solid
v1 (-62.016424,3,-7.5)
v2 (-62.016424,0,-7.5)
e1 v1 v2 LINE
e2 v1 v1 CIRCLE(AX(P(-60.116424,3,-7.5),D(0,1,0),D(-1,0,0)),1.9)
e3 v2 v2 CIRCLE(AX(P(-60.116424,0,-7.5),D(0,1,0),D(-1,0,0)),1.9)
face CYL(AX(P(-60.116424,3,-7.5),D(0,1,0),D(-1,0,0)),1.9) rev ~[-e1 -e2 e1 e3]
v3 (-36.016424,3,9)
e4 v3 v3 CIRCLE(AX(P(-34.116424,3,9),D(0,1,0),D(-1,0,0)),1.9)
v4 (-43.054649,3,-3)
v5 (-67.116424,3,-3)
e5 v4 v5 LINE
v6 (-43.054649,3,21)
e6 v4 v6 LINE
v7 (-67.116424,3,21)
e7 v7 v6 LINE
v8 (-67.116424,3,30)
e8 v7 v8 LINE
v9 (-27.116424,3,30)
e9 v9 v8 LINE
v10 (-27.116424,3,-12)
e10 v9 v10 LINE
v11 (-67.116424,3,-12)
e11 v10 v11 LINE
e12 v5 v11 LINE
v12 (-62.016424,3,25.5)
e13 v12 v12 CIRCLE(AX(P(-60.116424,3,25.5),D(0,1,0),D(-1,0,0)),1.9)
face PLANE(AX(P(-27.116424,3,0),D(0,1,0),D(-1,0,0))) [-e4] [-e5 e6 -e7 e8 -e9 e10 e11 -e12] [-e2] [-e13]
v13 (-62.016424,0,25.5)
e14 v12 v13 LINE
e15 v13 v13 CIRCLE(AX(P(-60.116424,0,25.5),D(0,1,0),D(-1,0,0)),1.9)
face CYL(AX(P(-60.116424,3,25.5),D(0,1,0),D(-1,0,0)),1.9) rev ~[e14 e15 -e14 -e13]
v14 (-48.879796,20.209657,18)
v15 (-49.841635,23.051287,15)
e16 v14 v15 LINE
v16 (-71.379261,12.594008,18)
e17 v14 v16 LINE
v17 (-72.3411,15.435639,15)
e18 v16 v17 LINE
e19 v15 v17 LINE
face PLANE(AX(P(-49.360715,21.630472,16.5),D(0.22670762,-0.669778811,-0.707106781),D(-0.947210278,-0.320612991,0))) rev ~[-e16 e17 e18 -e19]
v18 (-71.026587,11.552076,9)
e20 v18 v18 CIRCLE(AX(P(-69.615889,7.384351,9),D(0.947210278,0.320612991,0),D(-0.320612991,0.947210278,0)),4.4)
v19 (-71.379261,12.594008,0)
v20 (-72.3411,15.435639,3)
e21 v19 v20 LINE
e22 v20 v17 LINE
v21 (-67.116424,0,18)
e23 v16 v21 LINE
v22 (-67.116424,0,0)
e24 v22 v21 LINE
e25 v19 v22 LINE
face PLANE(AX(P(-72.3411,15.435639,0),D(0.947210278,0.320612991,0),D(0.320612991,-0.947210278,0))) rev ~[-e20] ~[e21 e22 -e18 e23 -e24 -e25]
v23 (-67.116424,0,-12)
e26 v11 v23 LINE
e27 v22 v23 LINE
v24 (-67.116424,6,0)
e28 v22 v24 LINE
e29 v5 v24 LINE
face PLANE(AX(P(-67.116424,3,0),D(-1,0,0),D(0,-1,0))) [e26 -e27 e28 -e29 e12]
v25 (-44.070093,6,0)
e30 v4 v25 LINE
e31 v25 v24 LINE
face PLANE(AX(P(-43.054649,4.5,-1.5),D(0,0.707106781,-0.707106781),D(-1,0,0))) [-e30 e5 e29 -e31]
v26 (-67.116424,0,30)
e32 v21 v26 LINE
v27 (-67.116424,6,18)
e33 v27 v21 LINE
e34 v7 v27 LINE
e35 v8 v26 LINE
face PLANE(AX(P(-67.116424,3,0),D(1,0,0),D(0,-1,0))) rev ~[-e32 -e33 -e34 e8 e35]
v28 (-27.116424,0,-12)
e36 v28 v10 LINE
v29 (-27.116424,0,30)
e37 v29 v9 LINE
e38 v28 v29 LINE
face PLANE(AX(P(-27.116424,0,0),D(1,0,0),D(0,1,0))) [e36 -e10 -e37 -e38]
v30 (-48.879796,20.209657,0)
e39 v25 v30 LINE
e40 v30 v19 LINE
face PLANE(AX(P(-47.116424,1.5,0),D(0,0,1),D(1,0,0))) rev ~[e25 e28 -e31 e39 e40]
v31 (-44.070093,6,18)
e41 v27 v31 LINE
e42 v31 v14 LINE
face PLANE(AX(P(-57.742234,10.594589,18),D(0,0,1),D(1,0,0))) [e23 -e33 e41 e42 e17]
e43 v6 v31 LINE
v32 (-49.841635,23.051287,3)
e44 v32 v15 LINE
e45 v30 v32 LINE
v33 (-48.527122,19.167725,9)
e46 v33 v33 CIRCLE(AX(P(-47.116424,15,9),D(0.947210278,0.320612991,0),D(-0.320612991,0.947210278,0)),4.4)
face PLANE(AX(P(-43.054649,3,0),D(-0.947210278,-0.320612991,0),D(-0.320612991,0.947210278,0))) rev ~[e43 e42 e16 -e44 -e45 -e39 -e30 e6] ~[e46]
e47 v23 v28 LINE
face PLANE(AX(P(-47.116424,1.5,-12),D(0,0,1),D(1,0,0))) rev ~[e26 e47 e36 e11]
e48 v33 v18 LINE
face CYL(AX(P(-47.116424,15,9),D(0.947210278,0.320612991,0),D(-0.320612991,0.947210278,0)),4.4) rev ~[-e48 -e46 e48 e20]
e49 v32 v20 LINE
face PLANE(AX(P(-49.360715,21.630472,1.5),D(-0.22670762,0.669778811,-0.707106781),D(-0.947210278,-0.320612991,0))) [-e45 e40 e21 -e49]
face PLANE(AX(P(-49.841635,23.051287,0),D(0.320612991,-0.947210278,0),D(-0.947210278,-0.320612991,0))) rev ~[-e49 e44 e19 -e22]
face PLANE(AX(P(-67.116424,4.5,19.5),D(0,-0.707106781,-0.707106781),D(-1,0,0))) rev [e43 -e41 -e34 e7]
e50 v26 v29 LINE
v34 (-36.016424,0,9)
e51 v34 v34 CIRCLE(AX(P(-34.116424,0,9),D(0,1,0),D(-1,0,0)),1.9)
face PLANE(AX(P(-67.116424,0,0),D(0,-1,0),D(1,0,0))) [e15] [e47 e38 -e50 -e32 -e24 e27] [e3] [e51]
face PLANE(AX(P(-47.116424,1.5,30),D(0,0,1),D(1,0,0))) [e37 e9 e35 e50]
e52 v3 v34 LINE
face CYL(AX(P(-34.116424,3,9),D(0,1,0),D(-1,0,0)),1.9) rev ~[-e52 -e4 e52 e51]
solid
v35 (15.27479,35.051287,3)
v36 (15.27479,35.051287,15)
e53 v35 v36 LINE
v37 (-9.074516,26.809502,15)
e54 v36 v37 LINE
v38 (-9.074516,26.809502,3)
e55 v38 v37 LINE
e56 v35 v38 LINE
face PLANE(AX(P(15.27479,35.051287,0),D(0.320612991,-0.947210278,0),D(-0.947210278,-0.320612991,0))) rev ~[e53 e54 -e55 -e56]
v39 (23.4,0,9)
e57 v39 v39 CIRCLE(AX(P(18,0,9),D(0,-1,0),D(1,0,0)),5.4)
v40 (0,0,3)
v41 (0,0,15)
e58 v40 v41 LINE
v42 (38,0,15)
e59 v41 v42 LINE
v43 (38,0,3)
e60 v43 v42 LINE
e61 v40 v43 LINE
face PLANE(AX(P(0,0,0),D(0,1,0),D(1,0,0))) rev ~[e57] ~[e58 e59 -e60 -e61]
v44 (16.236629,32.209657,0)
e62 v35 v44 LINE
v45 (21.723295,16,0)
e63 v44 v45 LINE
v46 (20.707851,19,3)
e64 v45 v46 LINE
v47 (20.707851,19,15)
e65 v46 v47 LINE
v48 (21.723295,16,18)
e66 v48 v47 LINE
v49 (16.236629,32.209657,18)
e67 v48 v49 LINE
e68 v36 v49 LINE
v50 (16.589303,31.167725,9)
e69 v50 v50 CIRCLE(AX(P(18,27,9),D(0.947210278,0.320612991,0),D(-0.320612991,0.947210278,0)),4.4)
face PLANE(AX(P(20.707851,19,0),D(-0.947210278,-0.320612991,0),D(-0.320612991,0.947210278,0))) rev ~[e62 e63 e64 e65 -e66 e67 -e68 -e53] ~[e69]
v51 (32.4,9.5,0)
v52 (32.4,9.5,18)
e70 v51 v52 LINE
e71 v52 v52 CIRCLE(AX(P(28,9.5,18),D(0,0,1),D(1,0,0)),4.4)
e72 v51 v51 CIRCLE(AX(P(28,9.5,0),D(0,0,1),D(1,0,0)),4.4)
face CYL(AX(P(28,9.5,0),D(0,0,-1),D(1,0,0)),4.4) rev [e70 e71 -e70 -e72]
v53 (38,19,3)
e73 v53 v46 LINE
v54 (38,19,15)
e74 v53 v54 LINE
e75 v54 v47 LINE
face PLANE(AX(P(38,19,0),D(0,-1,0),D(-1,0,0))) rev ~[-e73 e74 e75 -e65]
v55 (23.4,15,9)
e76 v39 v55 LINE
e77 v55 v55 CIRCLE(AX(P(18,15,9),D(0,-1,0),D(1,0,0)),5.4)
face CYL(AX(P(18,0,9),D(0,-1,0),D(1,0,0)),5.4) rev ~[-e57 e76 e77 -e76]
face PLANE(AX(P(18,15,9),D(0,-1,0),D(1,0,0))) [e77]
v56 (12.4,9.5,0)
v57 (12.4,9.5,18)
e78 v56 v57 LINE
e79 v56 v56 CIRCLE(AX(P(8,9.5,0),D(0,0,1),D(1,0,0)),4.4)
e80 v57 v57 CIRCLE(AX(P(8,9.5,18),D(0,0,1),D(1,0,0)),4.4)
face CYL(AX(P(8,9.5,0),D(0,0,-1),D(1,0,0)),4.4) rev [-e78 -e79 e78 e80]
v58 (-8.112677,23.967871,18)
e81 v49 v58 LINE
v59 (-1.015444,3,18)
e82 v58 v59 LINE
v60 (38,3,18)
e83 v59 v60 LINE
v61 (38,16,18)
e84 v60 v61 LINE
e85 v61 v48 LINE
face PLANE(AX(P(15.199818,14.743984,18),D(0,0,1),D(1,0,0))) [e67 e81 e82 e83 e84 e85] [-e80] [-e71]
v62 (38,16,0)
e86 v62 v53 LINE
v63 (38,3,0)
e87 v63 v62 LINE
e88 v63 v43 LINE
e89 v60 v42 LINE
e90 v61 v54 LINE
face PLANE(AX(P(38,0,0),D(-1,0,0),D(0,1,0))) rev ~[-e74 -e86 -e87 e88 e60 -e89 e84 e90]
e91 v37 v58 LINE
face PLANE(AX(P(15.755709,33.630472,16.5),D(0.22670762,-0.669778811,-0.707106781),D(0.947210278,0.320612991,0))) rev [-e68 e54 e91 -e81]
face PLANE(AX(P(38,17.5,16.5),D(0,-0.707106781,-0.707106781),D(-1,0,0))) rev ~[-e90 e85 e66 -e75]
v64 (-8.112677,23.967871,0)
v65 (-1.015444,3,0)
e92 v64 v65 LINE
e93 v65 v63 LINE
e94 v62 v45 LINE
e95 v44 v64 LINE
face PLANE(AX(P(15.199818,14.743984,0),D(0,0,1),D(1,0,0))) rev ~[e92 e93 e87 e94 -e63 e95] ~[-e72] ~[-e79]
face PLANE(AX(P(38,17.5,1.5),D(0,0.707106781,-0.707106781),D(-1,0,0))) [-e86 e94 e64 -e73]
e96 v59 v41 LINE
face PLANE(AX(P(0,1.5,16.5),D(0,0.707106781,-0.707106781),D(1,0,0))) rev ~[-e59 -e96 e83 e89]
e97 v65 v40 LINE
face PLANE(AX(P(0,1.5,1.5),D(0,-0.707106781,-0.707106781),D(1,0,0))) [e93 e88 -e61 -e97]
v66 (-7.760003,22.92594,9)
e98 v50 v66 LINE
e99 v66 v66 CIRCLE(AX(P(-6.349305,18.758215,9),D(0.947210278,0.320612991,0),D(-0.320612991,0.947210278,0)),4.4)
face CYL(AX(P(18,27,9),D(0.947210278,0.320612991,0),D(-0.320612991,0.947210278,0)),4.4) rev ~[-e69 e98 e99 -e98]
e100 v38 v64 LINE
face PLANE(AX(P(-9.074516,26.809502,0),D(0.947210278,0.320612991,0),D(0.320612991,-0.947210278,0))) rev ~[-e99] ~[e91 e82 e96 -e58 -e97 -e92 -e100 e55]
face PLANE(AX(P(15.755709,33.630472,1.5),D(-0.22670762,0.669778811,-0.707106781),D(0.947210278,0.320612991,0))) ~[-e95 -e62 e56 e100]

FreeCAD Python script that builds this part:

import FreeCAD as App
import Part
import Sketcher
Q = App.Units.Quantity


def edges_at(feature, points):
    """Names of the edges that pass closest to the given points."""
    edges = feature.Shape.Edges
    near = lambda p: min(range(len(edges)), key=lambda i: edges[i].distToShape(Part.Vertex(*p))[0])
    return sorted({f"Edge{near(p) + 1}" for p in points})


def add_polygon(sketch, points):
    """Adds a closed chain of lines whose ends are joined by coincident constraints."""
    first, n = sketch.GeometryCount, len(points)
    for a, b in zip(points, points[1:] + points[:1]):
        sketch.addGeometry(Part.LineSegment(App.Vector(*a, 0), App.Vector(*b, 0)), False)
    for i in range(n):
        sketch.addConstraint(Sketcher.Constraint("Coincident", first + i, 2, first + (i + 1) % n, 1))

doc = App.newDocument("Part")
body = doc.addObject("PartDesign::Body", "Body")

# Sketch on XY plane
sketch1 = body.newObject("Sketcher::SketchObject", "Sketch")
sketch1.AttachmentSupport = (doc.getObject("XY_Plane"), [""])
sketch1.MapMode = "FlatFace"
add_polygon(sketch1, [(-9.1, 26.8), (0, 0), (38, 0), (38, 19), (20.7, 19), (15.3, 35.1)])  # lines 0-5
sketch1.addGeometry(Part.Circle(App.Vector(8, 9.5, 0), App.Vector(0, 0, 1), 4.4), False)  # 6
sketch1.addGeometry(Part.Circle(App.Vector(28, 9.5, 0), App.Vector(0, 0, 1), 4.4), False)  # 7
sketch1.addConstraint([
    Sketcher.Constraint("Horizontal", 1),
    Sketcher.Constraint("Vertical", 2),
    Sketcher.Constraint("Horizontal", 3),
    Sketcher.Constraint("Coincident", 0, 2, -1, 1),
    Sketcher.Constraint("Equal", 6, 7),
    Sketcher.Constraint("Parallel", 0, 4),
    Sketcher.Constraint("Perpendicular", 4, 5),
    Sketcher.Constraint("Horizontal", 6, 3, 7, 3),
    Sketcher.Constraint("Diameter", 6, 8.8),
    Sketcher.Constraint("DistanceX", 1, 1, 1, 2, 38.0),
    Sketcher.Constraint("DistanceY", 2, 1, 2, 2, 19.0),
    Sketcher.Constraint("DistanceX", -1, 1, 6, 3, 8.0),
    Sketcher.Constraint("DistanceX", -1, 1, 7, 3, 28.0),
    Sketcher.Constraint("Angle", 0, Q("-71.3 deg")),
    Sketcher.Constraint("DistanceY", -1, 1, 6, 3, 9.5),
    Sketcher.Constraint("DistanceX", 3, 2, 3, 1, 17.292149),
    Sketcher.Constraint("DistanceX", -1, 1, 4, 2, 15.27479),
])
pad1 = body.newObject("PartDesign::Pad", "Pad")
pad1.Profile = sketch1
pad1.Length = 18

# Sketch on XZ plane
sketch2 = body.newObject("Sketcher::SketchObject", "Sketch001")
sketch2.AttachmentSupport = (doc.getObject("XZ_Plane"), [""])
sketch2.MapMode = "FlatFace"
sketch2.addGeometry(Part.Circle(App.Vector(18, 9, 0), App.Vector(0, 0, 1), 5), False)
sketch2.addConstraint([
    Sketcher.Constraint("Diameter", 0, 10.8),
    Sketcher.Constraint("DistanceX", -1, 1, 0, 3, 18.0),
    Sketcher.Constraint("DistanceY", -1, 1, 0, 3, 9.0),
])
pocket1 = body.newObject("PartDesign::Pocket", "Pocket")
pocket1.Profile = sketch2
pocket1.Length = 15

# Sketch on an angled plane
sketch3 = body.newObject("Sketcher::SketchObject", "Sketch002")
sketch3.Placement = App.Placement(App.Vector(24.349305, 8.241785, 0), App.Rotation(App.Vector(-0.320612991, 0.947210278, 0), App.Vector(0, 0, 1.000000001), App.Vector(0.947210278, 0.320612991, 0), "ZXY"))
sketch3.addGeometry(Part.Circle(App.Vector(19.8, 9, 0), App.Vector(0, 0, 1), 4.4), False)
sketch3.addConstraint([
    Sketcher.Constraint("Diameter", 0, 8.8),
    Sketcher.Constraint("DistanceY", -1, 1, 0, 3, 9.0),
    Sketcher.Constraint("DistanceX", -1, 1, 0, 3, 19.803644),
])
pocket2 = body.newObject("PartDesign::Pocket", "Pocket001")
pocket2.Profile = sketch3
pocket2.Length = 55
doc.recompute()

chamfer = body.newObject("PartDesign::Chamfer", "Chamfer")
chamfer.Base = (pocket2, edges_at(pocket2, [
    (3.1, 30.93, 18),
    (3.1, 30.93, 0),
    (29.354, 19, 18),
    (29.354, 19, 0),
    (19, 0, 18),
    (19, 0, 0),
]))
chamfer.Size = 3
body2 = doc.addObject("PartDesign::Body", "Body001")

# Sketch on XY plane
sketch4 = body2.newObject("Sketcher::SketchObject", "Sketch003")
sketch4.AttachmentSupport = (doc.getObject("XY_Plane001"), [""])
sketch4.MapMode = "FlatFace"
add_polygon(sketch4, [(-72.3, 15.4), (-67.1, 0), (-67.1, 3), (-43.1, 3), (-49.8, 23.1)])  # lines 0-4
sketch4.addConstraint([
    Sketcher.Constraint("Vertical", 1),
    Sketcher.Constraint("Horizontal", 2),
    Sketcher.Constraint("PointOnObject", 0, 2, -1),
    Sketcher.Constraint("Parallel", 0, 3),
    Sketcher.Constraint("Perpendicular", 3, 4),
    Sketcher.Constraint("DistanceY", 1, 1, 1, 2, 3.0),
    Sketcher.Constraint("Angle", 0, Q("-71.3 deg")),
    Sketcher.Constraint("Distance", 4, 23.7534),
    Sketcher.Constraint("DistanceX", 4, 2, -1, 1, 72.3411),
    Sketcher.Constraint("Distance", 3, 21.168781),
])
pad2 = body2.newObject("PartDesign::Pad", "Pad001")
pad2.Profile = sketch4
pad2.Length = 18

# Sketch on XY plane
sketch5 = body2.newObject("Sketcher::SketchObject", "Sketch004")
sketch5.AttachmentSupport = (doc.getObject("XY_Plane001"), [""])
sketch5.MapMode = "FlatFace"
add_polygon(sketch5, [(-67.1, 3), (-67.1, 0), (-27.1, 0), (-27.1, 3)])  # lines 0-3
sketch5.addConstraint([
    Sketcher.Constraint("Vertical", 0),
    Sketcher.Constraint("Horizontal", 1),
    Sketcher.Constraint("Vertical", 2),
    Sketcher.Constraint("Horizontal", 3),
    Sketcher.Constraint("PointOnObject", 0, 2, -1),
    Sketcher.Constraint("DistanceX", 1, 1, 1, 2, 40.0),
    Sketcher.Constraint("DistanceY", 0, 2, 0, 1, 3.0),
    Sketcher.Constraint("DistanceX", 0, 2, -1, 1, 67.116424),
])
pad3 = body2.newObject("PartDesign::Pad", "Pad002")
pad3.Profile = sketch5
pad3.Type = "TwoLengths"
pad3.Length = 30
pad3.Length2 = 12

# Sketch on an angled plane
sketch6 = body2.newObject("Sketcher::SketchObject", "Sketch005")
sketch6.Placement = App.Placement(App.Vector(-37.717882, -12.766799, 0), App.Rotation(App.Vector(-0.320612991, 0.947210278, 0), App.Vector(0, 0, 1.000000001), App.Vector(0.947210278, 0.320612991, 0), "ZXY"))
sketch6.addGeometry(Part.Circle(App.Vector(29.3, 9, 0), App.Vector(0, 0, 1), 4.4), False)
sketch6.addConstraint([
    Sketcher.Constraint("Diameter", 0, 8.8),
    Sketcher.Constraint("DistanceY", -1, 1, 0, 3, 9.0),
    Sketcher.Constraint("DistanceX", -1, 1, 0, 3, 29.314292),
])
pocket3 = body2.newObject("PartDesign::Pocket", "Pocket002")
pocket3.Profile = sketch6
pocket3.Length = 45
doc.recompute()

chamfer2 = body2.newObject("PartDesign::Chamfer", "Chamfer001")
chamfer2.Base = (pocket3, edges_at(pocket3, [
    (-61.091, 19.243, 18),
    (-61.091, 19.243, 0),
    (-55.086, 3, 18),
    (-55.086, 3, 0),
]))
chamfer2.Size = 3

# Sketch on XZ plane
sketch7 = body2.newObject("Sketcher::SketchObject", "Sketch006")
sketch7.AttachmentSupport = (doc.getObject("XZ_Plane001"), [""])
sketch7.MapMode = "FlatFace"
sketch7.AttachmentOffset = App.Placement(App.Vector(0, 0, -3), App.Rotation())
sketch7.addGeometry([
    Part.Circle(App.Vector(-60.1, -7.5, 0), App.Vector(0, 0, 1), 1.9),
    Part.Circle(App.Vector(-60.1, 25.5, 0), App.Vector(0, 0, 1), 1.9),
    Part.Circle(App.Vector(-34.1, 9, 0), App.Vector(0, 0, 1), 1.9),
], False)
sketch7.addConstraint([
    Sketcher.Constraint("Equal", 0, 1),
    Sketcher.Constraint("Equal", 1, 2),
    Sketcher.Constraint("Vertical", 0, 3, 1, 3),
    Sketcher.Constraint("Diameter", 0, 3.8),
    Sketcher.Constraint("DistanceY", -1, 1, 2, 3, 9.0),
    Sketcher.Constraint("DistanceY", 0, 3, 1, 3, 33.0),
    Sketcher.Constraint("DistanceX", 0, 3, 2, 3, 26.0),
    Sketcher.Constraint("DistanceY", 0, 3, -1, 1, 7.5),
    Sketcher.Constraint("DistanceX", 0, 3, -1, 1, 60.116424),
])
pocket4 = body2.newObject("PartDesign::Pocket", "Pocket003")
pocket4.Profile = sketch7
pocket4.Length = 25
pocket4.Reversed = True

doc.recompute()
